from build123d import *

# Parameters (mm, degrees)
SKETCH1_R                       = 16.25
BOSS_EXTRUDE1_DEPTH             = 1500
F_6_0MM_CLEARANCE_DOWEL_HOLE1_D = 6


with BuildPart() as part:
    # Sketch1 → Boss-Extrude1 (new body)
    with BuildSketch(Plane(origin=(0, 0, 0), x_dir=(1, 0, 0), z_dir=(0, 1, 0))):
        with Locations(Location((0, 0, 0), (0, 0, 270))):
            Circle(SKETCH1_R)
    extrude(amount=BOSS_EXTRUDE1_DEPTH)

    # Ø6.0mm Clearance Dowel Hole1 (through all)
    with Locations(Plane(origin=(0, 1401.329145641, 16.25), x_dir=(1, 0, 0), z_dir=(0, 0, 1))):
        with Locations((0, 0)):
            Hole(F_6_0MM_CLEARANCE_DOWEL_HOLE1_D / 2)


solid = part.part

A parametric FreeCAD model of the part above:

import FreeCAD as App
import Part
import Sketcher
from FreeCAD import Vector
Q = App.Units.Quantity

doc = App.newDocument("Part")
params = doc.addObject("Spreadsheet::Sheet", "Params")
for row, (alias, value) in enumerate([
    ("sketch1_diameter", "32.5 mm"),
    ("pad1_length", "1500 mm"),
    ("sketch2_diameter", "6 mm"),
    ("hole_diameter", "6 mm"),
], start=1):
    params.set(f"A{row}", alias)
    params.set(f"B{row}", "=" + value)
    params.setAlias(f"B{row}", alias)

body = doc.addObject("PartDesign::Body", "Body")

sketch1 = body.newObject("Sketcher::SketchObject", "Sketch")
sketch1.AttachmentSupport = (doc.getObject("XZ_Plane"), [""])
sketch1.MapMode = "FlatFace"
sketch1.addGeometry(Part.Circle(Vector(0, 0, 0), Vector(0, 0, 1), 16), False)
sketch1.addConstraint([
    Sketcher.Constraint("Coincident", 0, 3, -1, 1),
    Sketcher.Constraint("Diameter", 0, Q("32.5 mm")),
])
sketch1.setExpression("Constraints[1]", "Params.sketch1_diameter")
pad1 = body.newObject("PartDesign::Pad", "Pad")
pad1.Profile = sketch1
pad1.setExpression("Length", "Params.pad1_length")
pad1.Reversed = True

sketch2 = body.newObject("Sketcher::SketchObject", "Sketch001")
sketch2.AttachmentSupport = (doc.getObject("XY_Plane"), [""])
sketch2.MapMode = "FlatFace"
sketch2.AttachmentOffset = App.Placement(Vector(0, 0, 16.25), App.Rotation())
sketch2.addGeometry(Part.Circle(Vector(0, 1401.3, 0), Vector(0, 0, 1), 3), False)
sketch2.addConstraint([
    Sketcher.Constraint("PointOnObject", 0, 3, -2),
    Sketcher.Constraint("Diameter", 0, Q("6 mm")),
    Sketcher.Constraint("DistanceY", -1, 1, 0, 3, Q("1401.329146 mm")),
])
sketch2.setExpression("Constraints[1]", "Params.sketch2_diameter")
doc.recompute()
hole = body.newObject("PartDesign::Hole", "Hole")
hole.Profile = sketch2
hole.ThreadType = "None"
hole.setExpression("Diameter", "Params.hole_diameter")
hole.DepthType = "ThroughAll"

doc.recompute()
